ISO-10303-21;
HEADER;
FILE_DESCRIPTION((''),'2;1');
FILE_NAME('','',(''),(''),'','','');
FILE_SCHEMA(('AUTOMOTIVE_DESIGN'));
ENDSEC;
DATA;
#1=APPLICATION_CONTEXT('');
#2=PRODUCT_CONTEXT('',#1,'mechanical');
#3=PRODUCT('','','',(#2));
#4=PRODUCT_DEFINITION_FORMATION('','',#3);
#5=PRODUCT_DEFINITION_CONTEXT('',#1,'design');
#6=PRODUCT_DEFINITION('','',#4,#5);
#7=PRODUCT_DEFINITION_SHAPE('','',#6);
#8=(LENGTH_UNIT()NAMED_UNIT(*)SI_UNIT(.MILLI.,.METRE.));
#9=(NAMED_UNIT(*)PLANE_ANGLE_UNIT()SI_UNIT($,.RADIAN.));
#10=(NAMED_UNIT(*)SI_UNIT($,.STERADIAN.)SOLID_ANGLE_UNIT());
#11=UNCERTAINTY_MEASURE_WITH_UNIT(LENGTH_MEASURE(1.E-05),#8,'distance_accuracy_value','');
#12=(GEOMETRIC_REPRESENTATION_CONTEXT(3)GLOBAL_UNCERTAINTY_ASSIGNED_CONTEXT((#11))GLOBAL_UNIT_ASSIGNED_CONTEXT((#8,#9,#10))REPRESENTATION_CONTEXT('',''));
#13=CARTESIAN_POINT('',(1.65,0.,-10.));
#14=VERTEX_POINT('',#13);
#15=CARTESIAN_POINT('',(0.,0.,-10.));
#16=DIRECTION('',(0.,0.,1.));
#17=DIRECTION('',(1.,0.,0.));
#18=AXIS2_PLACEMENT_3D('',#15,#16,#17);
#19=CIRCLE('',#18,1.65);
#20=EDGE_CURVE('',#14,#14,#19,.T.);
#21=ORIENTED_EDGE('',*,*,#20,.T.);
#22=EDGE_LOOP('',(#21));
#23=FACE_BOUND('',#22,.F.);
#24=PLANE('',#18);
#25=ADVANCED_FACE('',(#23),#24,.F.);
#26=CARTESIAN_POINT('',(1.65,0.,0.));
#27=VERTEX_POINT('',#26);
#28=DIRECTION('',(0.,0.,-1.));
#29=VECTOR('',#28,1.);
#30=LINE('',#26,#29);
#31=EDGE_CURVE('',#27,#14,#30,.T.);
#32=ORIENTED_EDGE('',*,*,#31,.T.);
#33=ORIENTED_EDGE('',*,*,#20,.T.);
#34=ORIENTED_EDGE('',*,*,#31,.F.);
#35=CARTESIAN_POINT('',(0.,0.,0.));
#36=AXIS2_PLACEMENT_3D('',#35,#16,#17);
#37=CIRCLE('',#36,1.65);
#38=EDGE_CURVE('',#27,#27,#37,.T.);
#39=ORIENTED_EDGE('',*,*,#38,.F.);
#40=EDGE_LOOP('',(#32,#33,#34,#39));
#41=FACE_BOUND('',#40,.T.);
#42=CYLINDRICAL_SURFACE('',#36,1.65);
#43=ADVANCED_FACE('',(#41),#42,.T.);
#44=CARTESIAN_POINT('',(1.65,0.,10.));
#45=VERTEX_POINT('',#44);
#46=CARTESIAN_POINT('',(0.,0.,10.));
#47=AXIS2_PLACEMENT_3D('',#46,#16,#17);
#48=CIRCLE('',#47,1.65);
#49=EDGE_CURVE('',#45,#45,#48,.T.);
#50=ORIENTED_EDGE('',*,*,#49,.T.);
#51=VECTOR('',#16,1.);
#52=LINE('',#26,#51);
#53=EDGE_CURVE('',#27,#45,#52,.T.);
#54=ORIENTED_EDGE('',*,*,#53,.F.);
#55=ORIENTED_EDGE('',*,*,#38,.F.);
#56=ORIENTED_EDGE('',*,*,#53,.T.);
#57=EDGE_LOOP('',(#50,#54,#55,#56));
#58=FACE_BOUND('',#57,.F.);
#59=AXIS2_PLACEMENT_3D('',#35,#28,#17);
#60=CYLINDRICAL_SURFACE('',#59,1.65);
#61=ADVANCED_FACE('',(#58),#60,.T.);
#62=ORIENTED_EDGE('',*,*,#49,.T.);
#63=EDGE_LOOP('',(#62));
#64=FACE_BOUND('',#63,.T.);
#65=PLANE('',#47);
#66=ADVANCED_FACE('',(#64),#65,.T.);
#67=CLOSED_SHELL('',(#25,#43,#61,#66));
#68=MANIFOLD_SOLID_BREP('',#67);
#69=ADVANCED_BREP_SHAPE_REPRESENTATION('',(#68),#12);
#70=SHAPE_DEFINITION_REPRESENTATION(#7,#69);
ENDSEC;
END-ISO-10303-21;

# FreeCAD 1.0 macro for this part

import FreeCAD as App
import Part
import Sketcher
from FreeCAD import Vector
Q = App.Units.Quantity

doc = App.newDocument("Part")
params = doc.addObject("Spreadsheet::Sheet", "Params")
for row, (alias, value) in enumerate([
    ("sketch1_diameter", "3.3 mm"),
    ("pad1_length", "20 mm"),
], start=1):
    params.set(f"A{row}", alias)
    params.set(f"B{row}", "=" + value)
    params.setAlias(f"B{row}", alias)

body = doc.addObject("PartDesign::Body", "Body")

# Sketch on XY plane
sketch1 = body.newObject("Sketcher::SketchObject", "Sketch")
sketch1.AttachmentSupport = (doc.getObject("XY_Plane"), [""])
sketch1.MapMode = "FlatFace"
sketch1.addGeometry(Part.Circle(Vector(0, 0, 0), Vector(0, 0, 1), 1.65), False)
sketch1.addConstraint([
    Sketcher.Constraint("Coincident", 0, 3, -1, 1),
    Sketcher.Constraint("Diameter", 0, Q("3.3 mm")),
])
sketch1.setExpression("Constraints[1]", "Params.sketch1_diameter")
pad1 = body.newObject("PartDesign::Pad", "Pad")
pad1.Profile = sketch1
pad1.setExpression("Length", "Params.pad1_length")
pad1.Midplane = True

doc.recompute()
